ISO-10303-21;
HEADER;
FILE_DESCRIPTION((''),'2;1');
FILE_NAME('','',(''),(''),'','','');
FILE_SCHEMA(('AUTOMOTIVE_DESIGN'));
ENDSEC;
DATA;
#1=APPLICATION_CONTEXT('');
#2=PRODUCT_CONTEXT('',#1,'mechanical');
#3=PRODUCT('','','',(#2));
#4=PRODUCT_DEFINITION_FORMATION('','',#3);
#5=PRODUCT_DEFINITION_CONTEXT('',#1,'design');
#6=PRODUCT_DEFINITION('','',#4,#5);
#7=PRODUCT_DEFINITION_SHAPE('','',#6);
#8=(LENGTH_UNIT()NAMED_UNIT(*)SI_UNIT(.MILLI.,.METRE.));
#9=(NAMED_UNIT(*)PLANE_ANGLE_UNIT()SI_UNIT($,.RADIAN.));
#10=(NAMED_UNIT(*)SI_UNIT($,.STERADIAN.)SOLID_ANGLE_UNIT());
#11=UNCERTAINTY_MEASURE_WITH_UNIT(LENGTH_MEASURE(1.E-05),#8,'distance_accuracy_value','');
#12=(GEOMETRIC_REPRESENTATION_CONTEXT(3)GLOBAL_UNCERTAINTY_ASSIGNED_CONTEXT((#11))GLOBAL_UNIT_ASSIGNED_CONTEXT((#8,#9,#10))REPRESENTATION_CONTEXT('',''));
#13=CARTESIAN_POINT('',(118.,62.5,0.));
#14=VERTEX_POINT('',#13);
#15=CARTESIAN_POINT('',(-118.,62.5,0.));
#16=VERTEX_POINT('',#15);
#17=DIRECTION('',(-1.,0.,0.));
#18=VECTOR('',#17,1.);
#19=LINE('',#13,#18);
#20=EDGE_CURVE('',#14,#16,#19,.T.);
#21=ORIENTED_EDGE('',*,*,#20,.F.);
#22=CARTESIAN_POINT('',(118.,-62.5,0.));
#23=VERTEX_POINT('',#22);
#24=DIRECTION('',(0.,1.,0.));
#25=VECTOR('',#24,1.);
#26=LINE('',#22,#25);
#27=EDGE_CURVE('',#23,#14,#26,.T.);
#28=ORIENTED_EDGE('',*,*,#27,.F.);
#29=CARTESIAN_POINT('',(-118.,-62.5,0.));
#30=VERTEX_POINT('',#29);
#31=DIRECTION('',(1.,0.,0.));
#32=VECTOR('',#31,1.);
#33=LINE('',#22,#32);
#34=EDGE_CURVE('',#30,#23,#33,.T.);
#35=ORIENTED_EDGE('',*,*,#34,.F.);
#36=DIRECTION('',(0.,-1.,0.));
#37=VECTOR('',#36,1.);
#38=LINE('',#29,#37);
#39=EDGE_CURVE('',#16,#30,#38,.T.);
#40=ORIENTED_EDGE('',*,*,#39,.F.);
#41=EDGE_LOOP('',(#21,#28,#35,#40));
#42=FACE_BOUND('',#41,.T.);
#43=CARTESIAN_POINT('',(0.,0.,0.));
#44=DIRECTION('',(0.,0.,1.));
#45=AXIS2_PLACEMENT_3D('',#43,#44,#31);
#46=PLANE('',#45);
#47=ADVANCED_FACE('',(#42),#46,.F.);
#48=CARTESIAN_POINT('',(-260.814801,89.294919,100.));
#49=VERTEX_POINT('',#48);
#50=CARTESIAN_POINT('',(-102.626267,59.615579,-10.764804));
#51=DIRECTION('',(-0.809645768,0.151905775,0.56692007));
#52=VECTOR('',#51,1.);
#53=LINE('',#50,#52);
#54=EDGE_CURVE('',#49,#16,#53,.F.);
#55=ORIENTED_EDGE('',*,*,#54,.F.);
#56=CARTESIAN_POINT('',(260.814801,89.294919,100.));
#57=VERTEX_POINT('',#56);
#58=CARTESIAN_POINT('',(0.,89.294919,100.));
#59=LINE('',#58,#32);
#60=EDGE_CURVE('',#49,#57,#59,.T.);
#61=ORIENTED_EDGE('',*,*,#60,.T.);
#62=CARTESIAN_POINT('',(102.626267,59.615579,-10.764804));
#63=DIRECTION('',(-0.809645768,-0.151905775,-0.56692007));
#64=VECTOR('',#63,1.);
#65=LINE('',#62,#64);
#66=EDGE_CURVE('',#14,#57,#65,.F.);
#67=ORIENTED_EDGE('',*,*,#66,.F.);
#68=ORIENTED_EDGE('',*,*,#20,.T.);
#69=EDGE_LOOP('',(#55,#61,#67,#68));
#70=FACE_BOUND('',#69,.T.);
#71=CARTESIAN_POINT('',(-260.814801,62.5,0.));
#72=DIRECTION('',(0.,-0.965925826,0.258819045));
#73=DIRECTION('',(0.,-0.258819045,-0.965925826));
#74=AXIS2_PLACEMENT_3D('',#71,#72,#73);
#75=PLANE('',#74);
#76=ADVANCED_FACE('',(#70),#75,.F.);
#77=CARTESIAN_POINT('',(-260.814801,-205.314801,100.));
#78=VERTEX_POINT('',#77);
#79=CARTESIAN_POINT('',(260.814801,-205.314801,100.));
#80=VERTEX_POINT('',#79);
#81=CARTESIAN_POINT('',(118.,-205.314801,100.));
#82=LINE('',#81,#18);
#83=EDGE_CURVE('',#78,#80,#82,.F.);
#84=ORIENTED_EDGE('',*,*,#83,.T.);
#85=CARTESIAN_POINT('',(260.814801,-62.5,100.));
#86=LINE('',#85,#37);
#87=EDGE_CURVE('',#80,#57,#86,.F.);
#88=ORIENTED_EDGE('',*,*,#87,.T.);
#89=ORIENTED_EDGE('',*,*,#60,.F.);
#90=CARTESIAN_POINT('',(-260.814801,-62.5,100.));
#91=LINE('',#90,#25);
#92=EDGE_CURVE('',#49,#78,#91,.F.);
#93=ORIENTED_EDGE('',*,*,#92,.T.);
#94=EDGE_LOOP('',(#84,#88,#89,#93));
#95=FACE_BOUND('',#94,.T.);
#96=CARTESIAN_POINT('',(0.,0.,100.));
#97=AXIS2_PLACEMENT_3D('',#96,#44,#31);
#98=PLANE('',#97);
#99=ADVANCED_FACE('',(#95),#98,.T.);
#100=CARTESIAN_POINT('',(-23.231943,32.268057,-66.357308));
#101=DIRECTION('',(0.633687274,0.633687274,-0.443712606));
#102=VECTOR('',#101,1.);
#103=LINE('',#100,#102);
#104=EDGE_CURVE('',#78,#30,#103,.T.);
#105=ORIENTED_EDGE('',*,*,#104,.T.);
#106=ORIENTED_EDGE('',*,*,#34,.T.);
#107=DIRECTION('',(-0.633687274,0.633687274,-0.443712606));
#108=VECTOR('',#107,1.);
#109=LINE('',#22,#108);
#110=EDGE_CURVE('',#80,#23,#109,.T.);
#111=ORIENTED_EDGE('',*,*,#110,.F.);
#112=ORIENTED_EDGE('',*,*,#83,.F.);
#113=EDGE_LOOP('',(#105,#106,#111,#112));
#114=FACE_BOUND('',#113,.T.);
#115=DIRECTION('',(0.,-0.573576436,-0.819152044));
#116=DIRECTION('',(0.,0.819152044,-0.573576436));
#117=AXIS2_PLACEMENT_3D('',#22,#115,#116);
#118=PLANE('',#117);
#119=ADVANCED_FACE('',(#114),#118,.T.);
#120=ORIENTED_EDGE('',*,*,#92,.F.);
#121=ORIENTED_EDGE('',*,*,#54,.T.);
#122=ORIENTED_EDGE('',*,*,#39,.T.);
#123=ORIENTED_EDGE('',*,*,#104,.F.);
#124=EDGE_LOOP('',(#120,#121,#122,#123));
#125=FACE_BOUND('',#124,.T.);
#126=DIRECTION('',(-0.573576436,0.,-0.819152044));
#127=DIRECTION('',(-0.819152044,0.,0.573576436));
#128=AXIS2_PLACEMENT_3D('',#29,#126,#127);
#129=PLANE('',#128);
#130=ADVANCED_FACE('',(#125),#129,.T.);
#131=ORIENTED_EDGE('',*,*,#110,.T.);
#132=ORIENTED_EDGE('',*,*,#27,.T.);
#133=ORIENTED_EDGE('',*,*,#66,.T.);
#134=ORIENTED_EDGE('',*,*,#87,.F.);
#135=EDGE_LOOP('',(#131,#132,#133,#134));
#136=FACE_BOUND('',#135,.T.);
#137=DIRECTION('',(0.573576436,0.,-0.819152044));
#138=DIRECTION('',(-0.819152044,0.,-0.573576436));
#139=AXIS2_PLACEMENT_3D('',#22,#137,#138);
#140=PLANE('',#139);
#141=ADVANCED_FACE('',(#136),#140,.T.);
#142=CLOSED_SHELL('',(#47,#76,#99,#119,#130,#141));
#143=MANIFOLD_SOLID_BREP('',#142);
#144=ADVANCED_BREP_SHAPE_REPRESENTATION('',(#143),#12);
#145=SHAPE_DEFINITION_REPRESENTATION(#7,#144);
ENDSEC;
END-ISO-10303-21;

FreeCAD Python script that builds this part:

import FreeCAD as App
import Part
import Sketcher

V = App.Vector
Q = App.Units.Quantity


def add_polygon(sketch, points):
    """Adds a closed chain of lines whose ends are joined by coincident constraints."""
    first, n = sketch.GeometryCount, len(points)
    for a, b in zip(points, points[1:] + points[:1]):
        sketch.addGeometry(Part.LineSegment(App.Vector(*a, 0), App.Vector(*b, 0)), False)
    for i in range(n):
        sketch.addConstraint(Sketcher.Constraint("Coincident", first + i, 2, first + (i + 1) % n, 1))

doc = App.newDocument("Part")
body = doc.addObject("PartDesign::Body", "Body")

sketch1 = doc.addObject("Sketcher::SketchObject", "Sketch")
body.addObject(sketch1)
sketch1.AttachmentSupport = (doc.XY_Plane, [""])
sketch1.MapMode = "FlatFace"
add_polygon(sketch1, [(-118, 62), (-118, -62), (118, -62), (118, 62)])
sketch1.addConstraint([
    Sketcher.Constraint("Vertical", 0),
    Sketcher.Constraint("Horizontal", 1),
    Sketcher.Constraint("Vertical", 2),
    Sketcher.Constraint("Horizontal", 3),
    Sketcher.Constraint("Symmetric", 0, 2, 2, 2, -1, 1),
    Sketcher.Constraint("DistanceX", 1, 1, 1, 2, 236.0),
    Sketcher.Constraint("DistanceY", 0, 2, 0, 1, 125.0),
])
pad1 = doc.addObject("PartDesign::Pad", "Pad")
body.addObject(pad1)
pad1.Profile = sketch1
pad1.Length = 100
pad1.TaperAngle = 55

sketch2 = doc.addObject("Sketcher::SketchObject", "Sketch001")
body.addObject(sketch2)
sketch2.AttachmentSupport = (doc.YZ_Plane, [""])
sketch2.MapMode = "FlatFace"
add_polygon(sketch2, [(118, 206), (62, 0), (318, 0), (318, 206)])
sketch2.addConstraint([
    Sketcher.Constraint("Horizontal", 1),
    Sketcher.Constraint("Vertical", 2),
    Sketcher.Constraint("Horizontal", 3),
    Sketcher.Constraint("PointOnObject", 0, 2, -1),
    Sketcher.Constraint("DistanceX", 3, 2, 3, 1, 200.0),
    Sketcher.Constraint("Angle", 0, Q("-105 deg")),
    Sketcher.Constraint("DistanceX", -1, 1, 0, 2, 62.5),
    Sketcher.Constraint("DistanceX", 1, 1, 1, 2, 255.182508),
])
pocket1 = doc.addObject("PartDesign::Pocket", "Pocket")
body.addObject(pocket1)
pocket1.Profile = sketch2
pocket1.Type = "ThroughAll"
pocket1.Midplane = True

doc.recompute()
